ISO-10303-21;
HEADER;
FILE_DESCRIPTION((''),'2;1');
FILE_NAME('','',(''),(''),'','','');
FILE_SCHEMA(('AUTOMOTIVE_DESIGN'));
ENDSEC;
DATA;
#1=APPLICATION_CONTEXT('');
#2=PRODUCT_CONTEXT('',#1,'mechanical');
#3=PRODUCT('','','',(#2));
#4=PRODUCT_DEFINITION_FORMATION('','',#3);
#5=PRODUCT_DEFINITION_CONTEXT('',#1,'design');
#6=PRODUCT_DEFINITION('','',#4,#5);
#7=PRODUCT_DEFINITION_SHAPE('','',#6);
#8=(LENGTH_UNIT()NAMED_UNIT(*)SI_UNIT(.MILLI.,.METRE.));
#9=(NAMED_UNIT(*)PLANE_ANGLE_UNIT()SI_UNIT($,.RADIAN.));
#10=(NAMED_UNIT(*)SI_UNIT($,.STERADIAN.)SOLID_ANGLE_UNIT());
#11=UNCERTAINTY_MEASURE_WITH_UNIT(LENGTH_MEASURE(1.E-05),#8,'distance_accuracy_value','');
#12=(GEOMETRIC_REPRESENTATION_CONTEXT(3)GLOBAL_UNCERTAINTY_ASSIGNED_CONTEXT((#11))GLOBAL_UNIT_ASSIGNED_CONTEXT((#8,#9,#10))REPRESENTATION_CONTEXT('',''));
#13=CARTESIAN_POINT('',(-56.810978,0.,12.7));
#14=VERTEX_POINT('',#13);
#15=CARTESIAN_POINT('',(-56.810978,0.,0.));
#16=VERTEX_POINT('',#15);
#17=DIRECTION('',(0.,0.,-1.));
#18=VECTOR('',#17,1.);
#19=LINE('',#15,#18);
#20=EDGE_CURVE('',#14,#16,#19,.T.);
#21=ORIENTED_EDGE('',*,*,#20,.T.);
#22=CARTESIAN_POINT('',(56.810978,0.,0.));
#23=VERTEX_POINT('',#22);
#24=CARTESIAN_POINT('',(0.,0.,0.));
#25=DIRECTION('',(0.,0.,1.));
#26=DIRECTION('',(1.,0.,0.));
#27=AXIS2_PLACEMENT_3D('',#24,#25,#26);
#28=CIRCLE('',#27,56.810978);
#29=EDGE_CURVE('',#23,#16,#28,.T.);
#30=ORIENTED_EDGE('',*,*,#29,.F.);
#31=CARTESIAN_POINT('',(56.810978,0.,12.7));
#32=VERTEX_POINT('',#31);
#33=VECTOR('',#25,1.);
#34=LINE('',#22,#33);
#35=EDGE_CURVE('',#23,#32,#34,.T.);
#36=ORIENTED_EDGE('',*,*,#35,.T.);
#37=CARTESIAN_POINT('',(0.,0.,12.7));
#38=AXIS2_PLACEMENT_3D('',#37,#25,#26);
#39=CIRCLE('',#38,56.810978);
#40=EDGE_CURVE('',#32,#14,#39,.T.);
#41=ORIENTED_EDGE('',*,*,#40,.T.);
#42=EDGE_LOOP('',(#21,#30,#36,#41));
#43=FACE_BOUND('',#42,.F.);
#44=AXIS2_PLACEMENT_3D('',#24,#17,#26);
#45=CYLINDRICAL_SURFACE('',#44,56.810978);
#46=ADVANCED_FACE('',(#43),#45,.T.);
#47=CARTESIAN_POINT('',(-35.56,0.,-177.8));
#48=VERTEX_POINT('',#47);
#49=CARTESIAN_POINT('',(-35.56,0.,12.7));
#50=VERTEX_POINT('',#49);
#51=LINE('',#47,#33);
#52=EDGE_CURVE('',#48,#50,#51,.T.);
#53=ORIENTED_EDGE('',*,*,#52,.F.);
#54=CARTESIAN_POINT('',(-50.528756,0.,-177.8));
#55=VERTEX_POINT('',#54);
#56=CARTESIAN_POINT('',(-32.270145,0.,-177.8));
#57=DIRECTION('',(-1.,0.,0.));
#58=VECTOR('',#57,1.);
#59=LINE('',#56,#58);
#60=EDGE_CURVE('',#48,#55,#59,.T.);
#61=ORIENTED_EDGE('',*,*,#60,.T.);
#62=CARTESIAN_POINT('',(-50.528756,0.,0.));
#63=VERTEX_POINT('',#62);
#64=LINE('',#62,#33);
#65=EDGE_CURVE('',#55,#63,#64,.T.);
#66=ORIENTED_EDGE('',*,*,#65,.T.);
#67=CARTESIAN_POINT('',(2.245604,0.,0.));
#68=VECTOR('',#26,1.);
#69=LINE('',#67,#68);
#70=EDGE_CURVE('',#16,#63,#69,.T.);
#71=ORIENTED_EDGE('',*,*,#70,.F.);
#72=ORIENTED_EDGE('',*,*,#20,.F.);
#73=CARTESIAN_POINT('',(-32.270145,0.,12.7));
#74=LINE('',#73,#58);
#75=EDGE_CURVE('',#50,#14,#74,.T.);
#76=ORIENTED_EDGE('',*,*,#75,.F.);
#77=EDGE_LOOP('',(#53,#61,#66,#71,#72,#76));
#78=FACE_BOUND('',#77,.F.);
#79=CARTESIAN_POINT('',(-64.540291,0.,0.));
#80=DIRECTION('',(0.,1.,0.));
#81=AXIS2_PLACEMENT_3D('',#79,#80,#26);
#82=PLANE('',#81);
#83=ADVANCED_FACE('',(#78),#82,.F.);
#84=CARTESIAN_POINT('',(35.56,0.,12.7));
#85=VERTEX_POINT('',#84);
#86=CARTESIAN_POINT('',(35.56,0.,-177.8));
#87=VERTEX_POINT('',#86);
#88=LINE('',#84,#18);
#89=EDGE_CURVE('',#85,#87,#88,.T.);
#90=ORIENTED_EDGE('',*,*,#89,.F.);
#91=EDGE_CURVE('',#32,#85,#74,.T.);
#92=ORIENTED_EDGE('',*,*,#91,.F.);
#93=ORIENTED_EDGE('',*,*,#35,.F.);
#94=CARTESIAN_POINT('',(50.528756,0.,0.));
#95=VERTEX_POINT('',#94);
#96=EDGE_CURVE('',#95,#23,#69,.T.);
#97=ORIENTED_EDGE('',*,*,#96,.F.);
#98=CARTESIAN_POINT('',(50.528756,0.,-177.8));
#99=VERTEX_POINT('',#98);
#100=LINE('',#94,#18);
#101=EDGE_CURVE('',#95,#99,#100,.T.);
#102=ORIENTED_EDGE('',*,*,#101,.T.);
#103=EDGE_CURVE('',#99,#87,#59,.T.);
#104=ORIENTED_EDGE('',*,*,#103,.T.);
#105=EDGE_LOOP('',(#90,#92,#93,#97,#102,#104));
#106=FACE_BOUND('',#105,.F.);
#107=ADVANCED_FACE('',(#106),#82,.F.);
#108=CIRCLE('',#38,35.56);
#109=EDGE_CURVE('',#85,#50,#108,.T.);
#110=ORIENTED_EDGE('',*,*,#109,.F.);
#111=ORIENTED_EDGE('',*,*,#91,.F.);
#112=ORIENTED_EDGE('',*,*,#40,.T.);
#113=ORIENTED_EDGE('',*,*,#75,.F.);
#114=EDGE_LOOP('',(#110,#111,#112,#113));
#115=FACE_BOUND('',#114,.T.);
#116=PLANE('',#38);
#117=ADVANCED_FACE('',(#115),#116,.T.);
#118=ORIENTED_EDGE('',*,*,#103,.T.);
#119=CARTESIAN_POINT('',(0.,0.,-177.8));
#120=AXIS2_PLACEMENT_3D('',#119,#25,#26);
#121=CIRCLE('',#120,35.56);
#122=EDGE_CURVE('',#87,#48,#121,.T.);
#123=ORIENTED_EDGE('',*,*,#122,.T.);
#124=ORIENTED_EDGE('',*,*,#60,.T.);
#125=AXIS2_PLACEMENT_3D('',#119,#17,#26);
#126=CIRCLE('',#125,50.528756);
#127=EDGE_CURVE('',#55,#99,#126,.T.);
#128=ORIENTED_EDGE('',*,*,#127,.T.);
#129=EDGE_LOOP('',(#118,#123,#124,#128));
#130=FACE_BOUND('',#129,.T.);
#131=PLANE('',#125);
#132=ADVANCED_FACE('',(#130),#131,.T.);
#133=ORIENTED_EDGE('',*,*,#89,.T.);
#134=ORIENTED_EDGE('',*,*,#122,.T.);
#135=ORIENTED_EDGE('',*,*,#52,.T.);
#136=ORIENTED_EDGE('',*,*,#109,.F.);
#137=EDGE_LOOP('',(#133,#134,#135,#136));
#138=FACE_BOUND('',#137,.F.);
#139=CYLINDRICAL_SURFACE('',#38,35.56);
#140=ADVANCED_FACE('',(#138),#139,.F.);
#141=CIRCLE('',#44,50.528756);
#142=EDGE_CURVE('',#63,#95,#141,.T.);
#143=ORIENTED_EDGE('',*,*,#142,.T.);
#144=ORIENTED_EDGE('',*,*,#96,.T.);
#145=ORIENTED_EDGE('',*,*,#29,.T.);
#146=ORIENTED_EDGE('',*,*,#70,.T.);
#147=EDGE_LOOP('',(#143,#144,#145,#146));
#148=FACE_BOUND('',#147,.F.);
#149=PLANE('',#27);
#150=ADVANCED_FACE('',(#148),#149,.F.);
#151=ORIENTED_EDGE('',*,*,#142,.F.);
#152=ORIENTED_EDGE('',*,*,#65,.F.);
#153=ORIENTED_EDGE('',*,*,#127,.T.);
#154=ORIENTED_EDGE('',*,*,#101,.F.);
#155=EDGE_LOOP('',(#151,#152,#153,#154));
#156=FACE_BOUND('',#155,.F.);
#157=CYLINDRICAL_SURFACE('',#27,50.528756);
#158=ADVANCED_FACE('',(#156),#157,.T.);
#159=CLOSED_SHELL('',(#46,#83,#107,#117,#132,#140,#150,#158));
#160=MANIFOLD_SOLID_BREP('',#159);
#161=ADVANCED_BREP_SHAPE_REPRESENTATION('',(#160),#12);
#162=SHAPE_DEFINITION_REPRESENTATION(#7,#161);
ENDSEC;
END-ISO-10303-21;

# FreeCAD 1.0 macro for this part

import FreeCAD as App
import Part
import Sketcher

V = App.Vector
Q = App.Units.Quantity


def add_polygon(sketch, points):
    """Adds a closed chain of lines whose ends are joined by coincident constraints."""
    first, n = sketch.GeometryCount, len(points)
    for a, b in zip(points, points[1:] + points[:1]):
        sketch.addGeometry(Part.LineSegment(App.Vector(*a, 0), App.Vector(*b, 0)), False)
    for i in range(n):
        sketch.addConstraint(Sketcher.Constraint("Coincident", first + i, 2, first + (i + 1) % n, 1))

doc = App.newDocument("Part")
body = doc.addObject("PartDesign::Body", "Body")

sketch1 = doc.addObject("Sketcher::SketchObject", "Sketch")
body.addObject(sketch1)
sketch1.AttachmentSupport = (doc.XY_Plane, [""])
sketch1.MapMode = "FlatFace"
sketch1.addGeometry(Part.Circle(V(0, 0, 0), V(0, 0, 1), 57), False)
sketch1.addConstraint([
    Sketcher.Constraint("Coincident", 0, 3, -1, 1),
    Sketcher.Constraint("Diameter", 0, 113.621957),
])
pad1 = doc.addObject("PartDesign::Pad", "Pad")
body.addObject(pad1)
pad1.Profile = sketch1
pad1.Length = Q("0.5 in")

sketch2 = doc.addObject("Sketcher::SketchObject", "Sketch001")
body.addObject(sketch2)
sketch2.AttachmentSupport = (doc.XY_Plane, [""])
sketch2.MapMode = "FlatFace"
sketch2.addGeometry(Part.Circle(V(0, 0, 0), V(0, 0, 1), 51), False)
sketch2.addConstraint([
    Sketcher.Constraint("Coincident", 0, 3, -1, 1),
    Sketcher.Constraint("Diameter", 0, 101.057513),
])
pad2 = doc.addObject("PartDesign::Pad", "Pad001")
body.addObject(pad2)
pad2.Profile = sketch2
pad2.Length = Q("7 in")
pad2.Reversed = True

sketch3 = doc.addObject("Sketcher::SketchObject", "Sketch002")
body.addObject(sketch3)
sketch3.AttachmentSupport = (doc.XY_Plane, [""])
sketch3.MapMode = "FlatFace"
sketch3.AttachmentOffset = App.Placement(V(0, 0, 0.5 * 25.4), App.Rotation())
sketch3.addGeometry(Part.Circle(V(0, 0, 0), V(0, 0, 1), 36), False)
sketch3.addConstraint([
    Sketcher.Constraint("Coincident", 0, 3, -1, 1),
    Sketcher.Constraint("Diameter", 0, Q("2.8 in")),
])
pocket1 = doc.addObject("PartDesign::Pocket", "Pocket")
body.addObject(pocket1)
pocket1.Profile = sketch3
pocket1.Length = Q("8 in")

sketch4 = doc.addObject("Sketcher::SketchObject", "Sketch003")
body.addObject(sketch4)
sketch4.AttachmentSupport = (doc.XY_Plane, [""])
sketch4.MapMode = "FlatFace"
add_polygon(sketch4, [(-65, 0), (-65, -62), (69, -62), (69, 0)])
sketch4.addConstraint([
    Sketcher.Constraint("Vertical", 0),
    Sketcher.Constraint("Horizontal", 1),
    Sketcher.Constraint("Vertical", 2),
    Sketcher.Constraint("Horizontal", 3),
    Sketcher.Constraint("PointOnObject", 2, 2, -1),
    Sketcher.Constraint("DistanceX", 1, 1, 1, 2, 133.57179),
    Sketcher.Constraint("DistanceY", 0, 2, 0, 1, 62.377859),
    Sketcher.Constraint("DistanceX", -1, 1, 1, 2, 69.031499),
])
pocket2 = doc.addObject("PartDesign::Pocket", "Pocket001")
body.addObject(pocket2)
pocket2.Profile = sketch4
pocket2.Type = "ThroughAll"
pocket2.Midplane = True

doc.recompute()
